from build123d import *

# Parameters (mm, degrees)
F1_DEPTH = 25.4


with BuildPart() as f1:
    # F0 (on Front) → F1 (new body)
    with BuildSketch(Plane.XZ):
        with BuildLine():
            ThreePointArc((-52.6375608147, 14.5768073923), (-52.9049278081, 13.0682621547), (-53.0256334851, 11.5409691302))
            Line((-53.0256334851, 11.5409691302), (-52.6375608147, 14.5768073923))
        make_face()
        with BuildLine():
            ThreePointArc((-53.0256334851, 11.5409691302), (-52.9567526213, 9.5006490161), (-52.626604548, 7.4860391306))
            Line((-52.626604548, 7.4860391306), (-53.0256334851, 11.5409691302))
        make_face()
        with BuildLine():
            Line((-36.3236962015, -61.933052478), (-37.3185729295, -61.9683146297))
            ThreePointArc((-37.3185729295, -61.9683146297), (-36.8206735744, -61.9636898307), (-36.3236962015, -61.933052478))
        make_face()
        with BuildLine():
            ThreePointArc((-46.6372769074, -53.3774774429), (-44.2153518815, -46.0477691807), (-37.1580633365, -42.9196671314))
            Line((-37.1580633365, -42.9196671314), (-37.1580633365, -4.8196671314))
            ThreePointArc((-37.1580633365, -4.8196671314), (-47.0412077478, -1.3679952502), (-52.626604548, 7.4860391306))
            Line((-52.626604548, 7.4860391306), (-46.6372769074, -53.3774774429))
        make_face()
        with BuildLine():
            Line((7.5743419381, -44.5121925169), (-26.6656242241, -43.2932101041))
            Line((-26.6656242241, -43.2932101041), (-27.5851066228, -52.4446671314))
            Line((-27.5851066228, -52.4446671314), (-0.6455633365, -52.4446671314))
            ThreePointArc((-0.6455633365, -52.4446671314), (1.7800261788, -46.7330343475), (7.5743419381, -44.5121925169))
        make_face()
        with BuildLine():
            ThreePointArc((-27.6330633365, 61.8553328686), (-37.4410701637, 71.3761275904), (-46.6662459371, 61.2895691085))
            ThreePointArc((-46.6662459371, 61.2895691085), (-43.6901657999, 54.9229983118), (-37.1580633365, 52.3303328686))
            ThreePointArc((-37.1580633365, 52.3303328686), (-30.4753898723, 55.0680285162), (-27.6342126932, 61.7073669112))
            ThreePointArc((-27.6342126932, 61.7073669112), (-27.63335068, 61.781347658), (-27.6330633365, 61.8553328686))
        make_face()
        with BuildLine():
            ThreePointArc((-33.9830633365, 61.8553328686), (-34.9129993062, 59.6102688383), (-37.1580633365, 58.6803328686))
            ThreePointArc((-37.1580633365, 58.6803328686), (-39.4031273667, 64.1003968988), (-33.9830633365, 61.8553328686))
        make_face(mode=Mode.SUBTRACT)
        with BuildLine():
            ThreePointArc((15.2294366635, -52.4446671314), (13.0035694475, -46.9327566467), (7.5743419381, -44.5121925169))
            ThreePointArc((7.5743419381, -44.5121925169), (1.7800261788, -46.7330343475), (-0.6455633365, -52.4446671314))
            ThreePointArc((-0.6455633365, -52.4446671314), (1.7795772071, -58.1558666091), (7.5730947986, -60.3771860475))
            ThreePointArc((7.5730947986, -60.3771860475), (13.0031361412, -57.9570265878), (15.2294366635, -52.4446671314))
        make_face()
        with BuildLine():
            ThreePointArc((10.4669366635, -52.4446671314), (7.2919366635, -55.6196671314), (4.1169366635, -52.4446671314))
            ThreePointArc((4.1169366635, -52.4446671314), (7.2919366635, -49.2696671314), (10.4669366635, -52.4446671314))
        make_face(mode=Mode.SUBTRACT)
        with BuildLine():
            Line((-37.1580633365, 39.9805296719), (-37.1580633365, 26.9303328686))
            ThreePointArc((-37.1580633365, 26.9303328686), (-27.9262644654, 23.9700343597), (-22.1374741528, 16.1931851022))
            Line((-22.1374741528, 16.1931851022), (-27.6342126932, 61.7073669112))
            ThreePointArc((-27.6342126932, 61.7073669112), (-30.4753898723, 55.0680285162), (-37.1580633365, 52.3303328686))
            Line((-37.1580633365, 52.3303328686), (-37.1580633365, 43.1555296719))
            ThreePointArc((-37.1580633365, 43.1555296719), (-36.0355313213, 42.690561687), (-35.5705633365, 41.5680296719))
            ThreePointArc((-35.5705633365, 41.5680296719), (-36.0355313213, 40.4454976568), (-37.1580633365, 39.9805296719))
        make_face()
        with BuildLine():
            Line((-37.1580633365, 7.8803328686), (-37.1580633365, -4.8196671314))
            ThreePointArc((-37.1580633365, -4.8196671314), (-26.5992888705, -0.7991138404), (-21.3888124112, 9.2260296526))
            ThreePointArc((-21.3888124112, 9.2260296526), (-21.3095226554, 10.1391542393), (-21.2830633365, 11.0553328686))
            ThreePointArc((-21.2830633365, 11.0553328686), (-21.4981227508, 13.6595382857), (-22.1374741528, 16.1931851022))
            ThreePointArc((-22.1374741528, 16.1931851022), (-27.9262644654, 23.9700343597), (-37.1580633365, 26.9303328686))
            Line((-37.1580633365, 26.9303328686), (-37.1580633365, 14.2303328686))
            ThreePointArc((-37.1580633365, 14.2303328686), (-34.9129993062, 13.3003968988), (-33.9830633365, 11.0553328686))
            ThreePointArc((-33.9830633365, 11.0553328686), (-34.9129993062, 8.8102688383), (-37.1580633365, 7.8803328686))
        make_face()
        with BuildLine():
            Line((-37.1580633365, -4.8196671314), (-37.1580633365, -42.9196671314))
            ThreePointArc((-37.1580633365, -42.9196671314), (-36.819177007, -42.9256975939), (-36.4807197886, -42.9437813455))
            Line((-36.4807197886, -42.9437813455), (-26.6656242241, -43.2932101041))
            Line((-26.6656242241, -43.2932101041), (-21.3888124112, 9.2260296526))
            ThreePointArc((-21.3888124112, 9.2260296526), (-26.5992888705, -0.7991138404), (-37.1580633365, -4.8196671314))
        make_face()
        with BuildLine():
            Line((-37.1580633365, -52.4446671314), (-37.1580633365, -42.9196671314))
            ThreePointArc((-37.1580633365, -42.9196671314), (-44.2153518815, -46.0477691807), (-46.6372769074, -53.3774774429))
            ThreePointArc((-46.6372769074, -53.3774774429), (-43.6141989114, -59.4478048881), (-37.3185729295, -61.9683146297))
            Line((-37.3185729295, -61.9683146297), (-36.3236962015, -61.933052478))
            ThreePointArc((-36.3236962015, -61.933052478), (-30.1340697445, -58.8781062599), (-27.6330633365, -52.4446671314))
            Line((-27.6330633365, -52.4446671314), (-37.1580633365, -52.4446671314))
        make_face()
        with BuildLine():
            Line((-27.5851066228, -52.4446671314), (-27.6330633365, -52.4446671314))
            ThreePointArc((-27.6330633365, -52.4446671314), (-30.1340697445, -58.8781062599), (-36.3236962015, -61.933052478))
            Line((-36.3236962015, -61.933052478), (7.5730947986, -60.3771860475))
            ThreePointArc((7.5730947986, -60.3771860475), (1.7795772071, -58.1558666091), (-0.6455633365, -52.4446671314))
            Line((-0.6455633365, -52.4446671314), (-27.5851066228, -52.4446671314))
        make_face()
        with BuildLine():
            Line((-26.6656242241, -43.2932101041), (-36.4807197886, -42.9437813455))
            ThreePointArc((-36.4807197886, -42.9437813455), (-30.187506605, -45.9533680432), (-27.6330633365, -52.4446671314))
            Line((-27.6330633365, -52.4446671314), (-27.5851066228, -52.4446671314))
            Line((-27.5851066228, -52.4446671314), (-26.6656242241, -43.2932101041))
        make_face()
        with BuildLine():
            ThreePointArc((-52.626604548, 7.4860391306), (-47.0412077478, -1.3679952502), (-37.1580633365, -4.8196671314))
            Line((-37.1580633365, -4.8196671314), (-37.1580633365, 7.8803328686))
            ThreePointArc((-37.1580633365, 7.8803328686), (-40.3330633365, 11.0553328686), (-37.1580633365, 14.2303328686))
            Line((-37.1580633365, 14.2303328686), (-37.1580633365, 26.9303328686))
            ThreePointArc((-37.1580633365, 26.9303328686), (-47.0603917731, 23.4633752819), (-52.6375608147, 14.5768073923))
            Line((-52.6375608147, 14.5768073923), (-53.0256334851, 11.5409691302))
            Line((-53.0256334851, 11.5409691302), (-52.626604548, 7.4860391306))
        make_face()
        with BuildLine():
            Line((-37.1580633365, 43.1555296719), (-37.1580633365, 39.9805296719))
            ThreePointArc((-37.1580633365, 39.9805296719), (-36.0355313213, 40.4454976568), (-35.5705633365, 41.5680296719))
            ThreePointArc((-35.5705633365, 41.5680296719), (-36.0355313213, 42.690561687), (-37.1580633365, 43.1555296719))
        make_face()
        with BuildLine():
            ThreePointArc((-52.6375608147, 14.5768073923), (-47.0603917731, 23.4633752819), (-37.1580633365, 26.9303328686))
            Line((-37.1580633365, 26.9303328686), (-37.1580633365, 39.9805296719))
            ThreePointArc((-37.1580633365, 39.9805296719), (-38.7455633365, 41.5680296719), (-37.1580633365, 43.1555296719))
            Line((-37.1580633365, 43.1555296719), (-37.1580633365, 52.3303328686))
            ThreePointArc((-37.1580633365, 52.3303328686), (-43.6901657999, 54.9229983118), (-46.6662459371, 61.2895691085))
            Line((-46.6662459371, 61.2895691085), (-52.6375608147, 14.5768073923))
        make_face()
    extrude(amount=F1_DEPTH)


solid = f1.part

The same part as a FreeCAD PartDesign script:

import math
import FreeCAD as App
import Part
import Sketcher

V = App.Vector
Q = App.Units.Quantity

doc = App.newDocument("Part")
params = doc.addObject("Spreadsheet::Sheet", "Params")
for row, (alias, value) in enumerate([
    ("sketch1_diameter", "0.25 in"),
    ("sketch1_radius", "0.625 in"),
    ("sketch1_radius2", "0.375 in"),
    ("sketch1_radius3", "0.3125 in"),
    ("sketch1_radius4", "0.0625 in"),
    ("pad1_length", "1 in"),
], start=1):
    params.set(f"A{row}", alias)
    params.set(f"B{row}", "=" + value)
    params.setAlias(f"B{row}", alias)

body = doc.addObject("PartDesign::Body", "Body")

sketch1 = body.newObject("Sketcher::SketchObject", "Sketch")
sketch1.AttachmentSupport = (doc.getObject("XZ_Plane"), [""])
sketch1.MapMode = "FlatFace"
sketch1.addGeometry([
    Part.ArcOfCircle(Part.Circle(V(-37.16, 11.06, 0), V(0, 0, 1), 15.88), math.radians(167.18), math.radians(178.25)),
    Part.ArcOfCircle(Part.Circle(V(-37.16, 11.06, 0), V(0, 0, 1), 15.88), math.radians(178.25), math.radians(192.99)),
    Part.LineSegment(V(-52.63, 7.49, 0), V(-46.64, -53.38, 0)),
    Part.ArcOfCircle(Part.Circle(V(-37.16, -52.44, 0), V(0, 0, 1), 9.53), math.radians(-174), math.radians(-91)),
    Part.ArcOfCircle(Part.Circle(V(-37.16, -52.44, 0), V(0, 0, 1), 9.53), math.radians(-90.97), math.radians(-84.97)),
    Part.LineSegment(V(-36.32, -61.93, 0), V(7.57, -60.38, 0)),
    Part.ArcOfCircle(Part.Circle(V(7.29, -52.44, 0), V(0, 0, 1), 7.94), math.radians(-88), math.radians(0)),
    Part.ArcOfCircle(Part.Circle(V(7.29, -52.44, 0), V(0, 0, 1), 7.94), math.radians(0), math.radians(88)),
    Part.LineSegment(V(7.57, -44.51, 0), V(-26.67, -43.29, 0)),
    Part.LineSegment(V(-26.67, -43.29, 0), V(-21.39, 9.23, 0)),
    Part.ArcOfCircle(Part.Circle(V(-37.16, 11.06, 0), V(0, 0, 1), 15.87), math.radians(-6.62), math.radians(0)),
    Part.ArcOfCircle(Part.Circle(V(-37.16, 11.06, 0), V(0, 0, 1), 15.87), math.radians(0), math.radians(18.88)),
    Part.LineSegment(V(-22.14, 16.19, 0), V(-27.63, 61.71, 0)),
    Part.ArcOfCircle(Part.Circle(V(-37.16, 61.86, 0), V(0, 0, 1), 9.52), math.radians(-0.89), math.radians(0)),
    Part.ArcOfCircle(Part.Circle(V(-37.16, 61.86, 0), V(0, 0, 1), 9.53), math.radians(0), math.radians(183)),
    Part.LineSegment(V(-46.67, 61.29, 0), V(-52.64, 14.58, 0)),
    Part.LineSegment(V(-37.16, 43.16, 0), V(-37.16, 39.98, 0)),
    Part.ArcOfCircle(Part.Circle(V(-37.16, 41.57, 0), V(0, 0, 1), 1.59), math.radians(90), math.radians(270)),
    Part.ArcOfCircle(Part.Circle(V(-37.16, 11.06, 0), V(0, 0, 1), 3.17), math.radians(90), math.radians(270)),
    Part.ArcOfCircle(Part.Circle(V(-37.16, 11.06, 0), V(0, 0, 1), 3.17), math.radians(0), math.radians(90)),
    Part.ArcOfCircle(Part.Circle(V(-37.16, 11.06, 0), V(0, 0, 1), 3.17), math.radians(-90), math.radians(0)),
    Part.Circle(V(7.29, -52.44, 0), V(0, 0, 1), 3.17),
    Part.ArcOfCircle(Part.Circle(V(-37.16, 61.86, 0), V(0, 0, 1), 3.17), math.radians(0), math.radians(270)),
    Part.ArcOfCircle(Part.Circle(V(-37.16, 61.86, 0), V(0, 0, 1), 3.17), math.radians(-90), math.radians(0)),
    Part.ArcOfCircle(Part.Circle(V(-37.16, -52.44, 0), V(0, 0, 1), 9.52), math.radians(85.92), math.radians(90)),
    Part.ArcOfCircle(Part.Circle(V(-37.16, -52.44, 0), V(0, 0, 1), 9.53), math.radians(0), math.radians(86)),
    Part.LineSegment(V(-27.63, -52.44, 0), V(-37.16, -52.44, 0)),
    Part.LineSegment(V(-37.16, -52.44, 0), V(-37.16, -42.92, 0)),
], False)
sketch1.addConstraint([
    Sketcher.Constraint("Tangent", 0, 2, 1, 1),
    Sketcher.Constraint("Coincident", 1, 2, 2, 1),
    Sketcher.Constraint("Tangent", 2, 2, 3, 1),
    Sketcher.Constraint("Tangent", 3, 2, 4, 1),
    Sketcher.Constraint("Coincident", 4, 2, 5, 1),
    Sketcher.Constraint("Tangent", 5, 2, 6, 1),
    Sketcher.Constraint("Tangent", 6, 2, 7, 1),
    Sketcher.Constraint("Tangent", 7, 2, 8, 1),
    Sketcher.Constraint("Coincident", 8, 2, 9, 1),
    Sketcher.Constraint("Coincident", 9, 2, 10, 1),
    Sketcher.Constraint("Tangent", 10, 2, 11, 1),
    Sketcher.Constraint("Coincident", 11, 2, 12, 1),
    Sketcher.Constraint("Coincident", 12, 2, 13, 1),
    Sketcher.Constraint("Tangent", 13, 2, 14, 1),
    Sketcher.Constraint("Coincident", 14, 2, 15, 1),
    Sketcher.Constraint("Coincident", 15, 2, 0, 1),
    Sketcher.Constraint("Coincident", 16, 1, 17, 1),
    Sketcher.Constraint("Coincident", 17, 2, 16, 2),
    Sketcher.Constraint("Tangent", 18, 1, 19, 2),
    Sketcher.Constraint("Tangent", 19, 1, 20, 2),
    Sketcher.Constraint("Tangent", 20, 1, 18, 2),
    Sketcher.Constraint("Tangent", 22, 1, 23, 2),
    Sketcher.Constraint("Coincident", 23, 1, 22, 2),
    Sketcher.Constraint("Tangent", 24, 1, 25, 2),
    Sketcher.Constraint("Coincident", 25, 1, 26, 1),
    Sketcher.Constraint("Coincident", 26, 2, 27, 1),
    Sketcher.Constraint("Coincident", 27, 2, 24, 2),
    Sketcher.Constraint("Vertical", 16),
    Sketcher.Constraint("Horizontal", 26),
    Sketcher.Constraint("Vertical", 27),
    Sketcher.Constraint("Coincident", 10, 3, 0, 3),
    Sketcher.Constraint("Coincident", 18, 3, 0, 3),
    Sketcher.Constraint("Coincident", 21, 3, 6, 3),
    Sketcher.Constraint("Coincident", 22, 3, 13, 3),
    Sketcher.Constraint("Coincident", 24, 3, 3, 3),
    Sketcher.Constraint("Coincident", 26, 2, 3, 3),
    Sketcher.Constraint("Equal", 0, 1),
    Sketcher.Constraint("Equal", 3, 4),
    Sketcher.Constraint("Equal", 6, 7),
    Sketcher.Constraint("Equal", 1, 10),
    Sketcher.Constraint("Equal", 10, 11),
    Sketcher.Constraint("Equal", 4, 13),
    Sketcher.Constraint("Equal", 13, 14),
    Sketcher.Constraint("Equal", 20, 21),
    Sketcher.Constraint("Equal", 21, 22),
    Sketcher.Constraint("Equal", 14, 24),
    Sketcher.Constraint("Equal", 24, 25),
    Sketcher.Constraint("Horizontal", 4, 3, 6, 3),
    Sketcher.Constraint("Horizontal", 25, 3, 6, 2),
    Sketcher.Constraint("Horizontal", 20, 3, 10, 2),
    Sketcher.Constraint("Horizontal", 23, 3, 13, 2),
    Sketcher.Constraint("Horizontal", 10, 2, 19, 1),
    Sketcher.Constraint("Horizontal", 13, 2, 22, 1),
    Sketcher.Constraint("Vertical", 1, 3, 3, 3),
    Sketcher.Constraint("Vertical", 11, 3, 13, 3),
    Sketcher.Constraint("Vertical", 14, 3, 17, 3),
    Sketcher.Constraint("Vertical", 25, 3, 16, 1),
    Sketcher.Constraint("Vertical", 17, 2, 18, 1),
    Sketcher.Constraint("Vertical", 18, 1, 20, 1),
    Sketcher.Constraint("Vertical", 20, 1, 23, 1),
    Sketcher.Constraint("Diameter", 21, Q("0.25 in")),
    Sketcher.Constraint("Radius", 0, Q("0.625 in")),
    Sketcher.Constraint("Radius", 3, Q("0.375 in")),
    Sketcher.Constraint("Radius", 6, Q("0.3125 in")),
    Sketcher.Constraint("Radius", 17, Q("0.0625 in")),
    Sketcher.Constraint("DistanceY", 1, 3, 13, 3, Q("2 in")),
    Sketcher.Constraint("DistanceY", 3, 3, 0, 3, Q("2.5 in")),
    Sketcher.Constraint("DistanceX", 3, 3, 6, 3, Q("1.75 in")),
    Sketcher.Constraint("DistanceY", 24, 1, -1, 1, Q("1.6907001 in")),
    Sketcher.Constraint("Distance", 2, Q("61.157499 mm")),
    Sketcher.Constraint("Distance", 12, Q("45.8449 mm")),
    Sketcher.Constraint("DistanceY", -1, 1, 17, 3, Q("41.56803 mm")),
    Sketcher.Constraint("DistanceY", -1, 1, 0, 2, Q("11.540969 mm")),
    Sketcher.Constraint("DistanceY", -1, 1, 1, 2, Q("7.486039 mm")),
    Sketcher.Constraint("DistanceX", -1, 1, 7, 2, Q("7.574342 mm")),
    Sketcher.Constraint("DistanceY", 8, 2, -1, 1, Q("43.29321 mm")),
    Sketcher.Constraint("DistanceY", -1, 1, 9, 2, Q("9.22603 mm")),
    Sketcher.Constraint("DistanceY", -1, 1, 14, 2, Q("61.289569 mm")),
    Sketcher.Constraint("DistanceX", 15, 2, -1, 1, Q("52.637561 mm")),
    Sketcher.Constraint("DistanceX", 3, 2, 3, 3, Q("0.16051 mm")),
    Sketcher.Constraint("DistanceX", 7, 3, 5, 2, Q("0.281158 mm")),
    Sketcher.Constraint("DistanceX", 24, 3, 8, 2, Q("10.492439 mm")),
    Sketcher.Constraint("DistanceX", 11, 2, 10, 2, Q("0.854411 mm")),
])
sketch1.setExpression("Constraints[60]", "Params.sketch1_diameter")
sketch1.setExpression("Constraints[61]", "Params.sketch1_radius")
sketch1.setExpression("Constraints[62]", "Params.sketch1_radius2")
sketch1.setExpression("Constraints[63]", "Params.sketch1_radius3")
sketch1.setExpression("Constraints[64]", "Params.sketch1_radius4")
pad1 = body.newObject("PartDesign::Pad", "Pad")
pad1.Profile = sketch1
pad1.setExpression("Length", "Params.pad1_length")

doc.recompute()
